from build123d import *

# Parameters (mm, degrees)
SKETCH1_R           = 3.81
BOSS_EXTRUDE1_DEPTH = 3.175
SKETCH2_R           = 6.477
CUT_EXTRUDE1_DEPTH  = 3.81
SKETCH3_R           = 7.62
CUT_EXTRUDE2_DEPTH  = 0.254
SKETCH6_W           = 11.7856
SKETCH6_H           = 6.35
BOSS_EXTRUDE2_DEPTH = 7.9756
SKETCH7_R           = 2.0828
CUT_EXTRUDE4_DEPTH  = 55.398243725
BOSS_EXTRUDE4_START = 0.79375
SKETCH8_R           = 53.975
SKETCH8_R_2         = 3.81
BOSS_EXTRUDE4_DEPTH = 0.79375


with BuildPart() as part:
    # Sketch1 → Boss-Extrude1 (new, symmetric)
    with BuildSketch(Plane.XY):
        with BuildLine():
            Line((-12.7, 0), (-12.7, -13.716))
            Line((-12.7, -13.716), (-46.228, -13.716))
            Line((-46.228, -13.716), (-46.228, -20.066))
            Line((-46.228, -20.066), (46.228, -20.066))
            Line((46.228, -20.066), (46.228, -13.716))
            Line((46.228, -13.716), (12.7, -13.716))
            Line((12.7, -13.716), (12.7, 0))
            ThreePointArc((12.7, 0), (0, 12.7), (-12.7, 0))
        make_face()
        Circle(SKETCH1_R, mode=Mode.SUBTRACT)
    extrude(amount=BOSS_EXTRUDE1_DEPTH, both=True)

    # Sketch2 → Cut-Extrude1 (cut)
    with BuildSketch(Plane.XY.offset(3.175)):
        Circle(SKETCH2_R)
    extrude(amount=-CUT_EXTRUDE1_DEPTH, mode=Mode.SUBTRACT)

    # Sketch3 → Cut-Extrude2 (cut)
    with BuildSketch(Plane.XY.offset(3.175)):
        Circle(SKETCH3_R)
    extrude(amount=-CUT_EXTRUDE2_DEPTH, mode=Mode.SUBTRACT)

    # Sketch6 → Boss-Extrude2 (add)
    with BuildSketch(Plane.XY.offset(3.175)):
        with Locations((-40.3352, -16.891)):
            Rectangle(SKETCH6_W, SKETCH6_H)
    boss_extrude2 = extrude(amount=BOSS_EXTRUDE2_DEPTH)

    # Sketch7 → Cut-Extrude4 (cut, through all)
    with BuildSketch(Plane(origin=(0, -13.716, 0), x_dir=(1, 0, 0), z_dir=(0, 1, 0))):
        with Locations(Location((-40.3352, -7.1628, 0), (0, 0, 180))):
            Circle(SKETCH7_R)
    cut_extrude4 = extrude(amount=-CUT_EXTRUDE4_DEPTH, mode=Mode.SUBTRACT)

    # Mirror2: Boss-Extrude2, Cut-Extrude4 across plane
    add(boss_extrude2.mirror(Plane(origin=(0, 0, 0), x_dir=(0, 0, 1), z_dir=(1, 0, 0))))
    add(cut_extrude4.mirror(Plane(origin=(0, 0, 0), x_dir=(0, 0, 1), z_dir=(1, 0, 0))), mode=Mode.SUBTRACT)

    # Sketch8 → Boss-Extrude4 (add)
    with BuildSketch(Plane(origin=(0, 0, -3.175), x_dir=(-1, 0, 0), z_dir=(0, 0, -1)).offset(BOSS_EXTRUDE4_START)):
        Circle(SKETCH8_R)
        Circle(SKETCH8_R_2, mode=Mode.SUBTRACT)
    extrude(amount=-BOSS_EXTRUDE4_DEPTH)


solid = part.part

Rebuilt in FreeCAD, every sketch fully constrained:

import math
import FreeCAD as App
import Part
import Sketcher
from FreeCAD import Vector
Q = App.Units.Quantity

doc = App.newDocument("Part")
body = doc.addObject("PartDesign::Body", "Body")

sketch1 = body.newObject("Sketcher::SketchObject", "Sketch")
sketch1.AttachmentSupport = (doc.getObject("XY_Plane"), [""])
sketch1.MapMode = "FlatFace"
sketch1.addGeometry(Part.LineSegment(Vector(-12.7, 0, 0), Vector(-12.7, -13.7, 0)), False)
sketch1.addGeometry(Part.LineSegment(Vector(-12.7, -13.7, 0), Vector(-46.2, -13.7, 0)), False)
sketch1.addGeometry(Part.LineSegment(Vector(-46.2, -13.7, 0), Vector(-46.2, -20.1, 0)), False)
sketch1.addGeometry(Part.LineSegment(Vector(-46.2, -20.1, 0), Vector(46.2, -20.1, 0)), False)
sketch1.addGeometry(Part.LineSegment(Vector(46.2, -20.1, 0), Vector(46.2, -13.7, 0)), False)
sketch1.addGeometry(Part.LineSegment(Vector(46.2, -13.7, 0), Vector(12.7, -13.7, 0)), False)
sketch1.addGeometry(Part.LineSegment(Vector(12.7, -13.7, 0), Vector(12.7, 0, 0)), False)
sketch1.addGeometry(Part.ArcOfCircle(Part.Circle(Vector(0, 0, 0), Vector(0, 0, 1), 12.7), math.radians(0), math.radians(180)), False)
sketch1.addGeometry(Part.Circle(Vector(0, 0, 0), Vector(0, 0, 1), 3.8), False)
sketch1.addConstraint(Sketcher.Constraint("Coincident", 0, 2, 1, 1))
sketch1.addConstraint(Sketcher.Constraint("Coincident", 1, 2, 2, 1))
sketch1.addConstraint(Sketcher.Constraint("Coincident", 2, 2, 3, 1))
sketch1.addConstraint(Sketcher.Constraint("Coincident", 3, 2, 4, 1))
sketch1.addConstraint(Sketcher.Constraint("Coincident", 4, 2, 5, 1))
sketch1.addConstraint(Sketcher.Constraint("Coincident", 5, 2, 6, 1))
sketch1.addConstraint(Sketcher.Constraint("Tangent", 6, 2, 7, 1))
sketch1.addConstraint(Sketcher.Constraint("Tangent", 7, 2, 0, 1))
sketch1.addConstraint(Sketcher.Constraint("Vertical", 0))
sketch1.addConstraint(Sketcher.Constraint("Horizontal", 1))
sketch1.addConstraint(Sketcher.Constraint("Vertical", 2))
sketch1.addConstraint(Sketcher.Constraint("Horizontal", 3))
sketch1.addConstraint(Sketcher.Constraint("Vertical", 4))
sketch1.addConstraint(Sketcher.Constraint("Horizontal", 5))
sketch1.addConstraint(Sketcher.Constraint("Vertical", 6))
sketch1.addConstraint(Sketcher.Constraint("Coincident", 7, 3, -1, 1))
sketch1.addConstraint(Sketcher.Constraint("Coincident", 8, 3, -1, 1))
sketch1.addConstraint(Sketcher.Constraint("Symmetric", 1, 2, 4, 2, -2))
sketch1.addConstraint(Sketcher.Constraint("Diameter", 8, Q("0.3 in")))
sketch1.addConstraint(Sketcher.Constraint("Radius", 7, Q("0.5 in")))
sketch1.addConstraint(Sketcher.Constraint("DistanceX", 1, 2, 1, 1, Q("1.32 in")))
sketch1.addConstraint(Sketcher.Constraint("DistanceY", 0, 2, 0, 1, Q("0.54 in")))
sketch1.addConstraint(Sketcher.Constraint("DistanceY", 2, 2, 2, 1, Q("0.25 in")))
pad1 = body.newObject("PartDesign::Pad", "Pad")
pad1.Profile = sketch1
pad1.Length = Q("0.25 in")
pad1.Midplane = True

sketch2 = body.newObject("Sketcher::SketchObject", "Sketch001")
sketch2.AttachmentSupport = (doc.getObject("XY_Plane"), [""])
sketch2.MapMode = "FlatFace"
sketch2.AttachmentOffset = App.Placement(Vector(0, 0, 0.125 * 25.4), App.Rotation())
sketch2.addGeometry(Part.Circle(Vector(0, 0, 0), Vector(0, 0, 1), 6), False)
sketch2.addConstraint(Sketcher.Constraint("Coincident", 0, 3, -1, 1))
sketch2.addConstraint(Sketcher.Constraint("Diameter", 0, Q("0.51 in")))
pocket1 = body.newObject("PartDesign::Pocket", "Pocket")
pocket1.Profile = sketch2
pocket1.Length = Q("0.15 in")

sketch3 = body.newObject("Sketcher::SketchObject", "Sketch002")
sketch3.AttachmentSupport = (doc.getObject("XY_Plane"), [""])
sketch3.MapMode = "FlatFace"
sketch3.AttachmentOffset = App.Placement(Vector(0, 0, 0.125 * 25.4), App.Rotation())
sketch3.addGeometry(Part.Circle(Vector(0, 0, 0), Vector(0, 0, 1), 8), False)
sketch3.addConstraint(Sketcher.Constraint("Coincident", 0, 3, -1, 1))
sketch3.addConstraint(Sketcher.Constraint("Diameter", 0, Q("0.6 in")))
pocket2 = body.newObject("PartDesign::Pocket", "Pocket001")
pocket2.Profile = sketch3
pocket2.Length = Q("0.01 in")

sketch4 = body.newObject("Sketcher::SketchObject", "Sketch003")
sketch4.AttachmentSupport = (doc.getObject("XY_Plane"), [""])
sketch4.MapMode = "FlatFace"
sketch4.AttachmentOffset = App.Placement(Vector(0, 0, 0.125 * 25.4), App.Rotation())
sketch4.addGeometry(Part.LineSegment(Vector(-46, -14, 0), Vector(-46, -20, 0)), False)
sketch4.addGeometry(Part.LineSegment(Vector(-46, -20, 0), Vector(-34, -20, 0)), False)
sketch4.addGeometry(Part.LineSegment(Vector(-34, -20, 0), Vector(-34, -14, 0)), False)
sketch4.addGeometry(Part.LineSegment(Vector(-34, -14, 0), Vector(-46, -14, 0)), False)
sketch4.addConstraint(Sketcher.Constraint("Coincident", 0, 2, 1, 1))
sketch4.addConstraint(Sketcher.Constraint("Coincident", 1, 2, 2, 1))
sketch4.addConstraint(Sketcher.Constraint("Coincident", 2, 2, 3, 1))
sketch4.addConstraint(Sketcher.Constraint("Coincident", 3, 2, 0, 1))
sketch4.addConstraint(Sketcher.Constraint("Vertical", 0))
sketch4.addConstraint(Sketcher.Constraint("Horizontal", 1))
sketch4.addConstraint(Sketcher.Constraint("Vertical", 2))
sketch4.addConstraint(Sketcher.Constraint("Horizontal", 3))
sketch4.addConstraint(Sketcher.Constraint("DistanceY", 0, 2, 0, 1, Q("0.25 in")))
sketch4.addConstraint(Sketcher.Constraint("DistanceX", 1, 1, 1, 2, Q("0.464 in")))
sketch4.addConstraint(Sketcher.Constraint("DistanceX", 0, 2, -1, 1, Q("1.82 in")))
sketch4.addConstraint(Sketcher.Constraint("DistanceY", 0, 2, -1, 1, Q("0.79 in")))
pad2 = body.newObject("PartDesign::Pad", "Pad001")
pad2.Profile = sketch4
pad2.Length = Q("0.314 in")

sketch5 = body.newObject("Sketcher::SketchObject", "Sketch004")
sketch5.AttachmentSupport = (doc.getObject("XZ_Plane"), [""])
sketch5.MapMode = "FlatFace"
sketch5.AttachmentOffset = App.Placement(Vector(0, 0, 0.54 * 25.4), App.Rotation())
sketch5.addGeometry(Part.Circle(Vector(-40.3, 7.2, 0), Vector(0, 0, 1), 2.1), False)
sketch5.addConstraint(Sketcher.Constraint("Diameter", 0, Q("0.164 in")))
sketch5.addConstraint(Sketcher.Constraint("DistanceX", 0, 3, -1, 1, Q("1.588 in")))
sketch5.addConstraint(Sketcher.Constraint("DistanceY", -1, 1, 0, 3, Q("0.282 in")))
pocket3 = body.newObject("PartDesign::Pocket", "Pocket002")
pocket3.Profile = sketch5
pocket3.Type = "ThroughAll"
pocket3.Reversed = True
doc.recompute()

mirrored = body.newObject("PartDesign::Mirrored", "Mirrored")
mirrored.Originals = [pad2, pocket3]
mirrored.MirrorPlane = (doc.getObject("YZ_Plane"), [""])
body.Tip = mirrored

sketch6 = body.newObject("Sketcher::SketchObject", "Sketch005")
sketch6.AttachmentSupport = (doc.getObject("XY_Plane"), [""])
sketch6.MapMode = "FlatFace"
sketch6.AttachmentOffset = App.Placement(Vector(0, 0, -0.15625 * 25.4), App.Rotation())
sketch6.addGeometry(Part.Circle(Vector(0, 0, 0), Vector(0, 0, 1), 54), False)
sketch6.addGeometry(Part.Circle(Vector(0, 0, 0), Vector(0, 0, 1), 3.8), False)
sketch6.addConstraint(Sketcher.Constraint("Coincident", 0, 3, -1, 1))
sketch6.addConstraint(Sketcher.Constraint("Coincident", 1, 3, -1, 1))
sketch6.addConstraint(Sketcher.Constraint("Diameter", 1, Q("0.3 in")))
sketch6.addConstraint(Sketcher.Constraint("Diameter", 0, Q("4.25 in")))
pad3 = body.newObject("PartDesign::Pad", "Pad002")
pad3.Profile = sketch6
pad3.Length = Q("0.03125 in")

doc.recompute()
